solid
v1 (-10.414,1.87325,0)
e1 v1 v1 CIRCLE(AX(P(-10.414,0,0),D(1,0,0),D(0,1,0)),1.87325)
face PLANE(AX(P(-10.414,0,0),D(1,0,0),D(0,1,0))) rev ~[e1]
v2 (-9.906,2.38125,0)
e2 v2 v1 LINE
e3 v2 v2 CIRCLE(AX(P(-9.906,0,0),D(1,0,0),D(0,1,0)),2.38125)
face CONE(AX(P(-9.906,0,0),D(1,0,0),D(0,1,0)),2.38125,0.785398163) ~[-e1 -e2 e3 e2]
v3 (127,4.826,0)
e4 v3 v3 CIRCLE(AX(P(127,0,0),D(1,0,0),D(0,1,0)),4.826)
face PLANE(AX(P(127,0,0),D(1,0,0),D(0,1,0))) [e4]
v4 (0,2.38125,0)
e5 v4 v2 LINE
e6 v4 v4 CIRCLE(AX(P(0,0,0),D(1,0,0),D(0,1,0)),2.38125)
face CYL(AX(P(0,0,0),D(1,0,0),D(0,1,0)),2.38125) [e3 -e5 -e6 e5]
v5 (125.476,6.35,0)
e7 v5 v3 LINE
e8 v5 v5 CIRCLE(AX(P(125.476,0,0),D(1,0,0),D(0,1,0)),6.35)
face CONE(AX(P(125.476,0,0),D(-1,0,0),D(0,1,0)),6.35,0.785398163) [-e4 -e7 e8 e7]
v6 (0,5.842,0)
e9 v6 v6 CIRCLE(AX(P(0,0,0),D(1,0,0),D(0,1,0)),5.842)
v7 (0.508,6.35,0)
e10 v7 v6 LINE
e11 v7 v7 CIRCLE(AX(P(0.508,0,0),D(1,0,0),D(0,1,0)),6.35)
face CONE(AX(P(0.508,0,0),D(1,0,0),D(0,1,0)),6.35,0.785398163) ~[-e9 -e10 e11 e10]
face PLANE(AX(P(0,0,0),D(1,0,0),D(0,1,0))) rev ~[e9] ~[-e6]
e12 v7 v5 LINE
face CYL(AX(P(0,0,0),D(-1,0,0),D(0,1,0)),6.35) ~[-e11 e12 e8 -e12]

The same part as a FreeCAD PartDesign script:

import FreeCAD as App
import Part
import Sketcher
from FreeCAD import Vector
Q = App.Units.Quantity


def edges_at(feature, points):
    """Names of the edges that pass closest to the given points."""
    edges = feature.Shape.Edges
    near = lambda p: min(range(len(edges)), key=lambda i: edges[i].distToShape(Part.Vertex(*p))[0])
    return sorted({f"Edge{near(p) + 1}" for p in points})

doc = App.newDocument("Part")
body = doc.addObject("PartDesign::Body", "Body")

# Sketch on YZ plane
sketch1 = body.newObject("Sketcher::SketchObject", "Sketch")
sketch1.AttachmentSupport = (doc.getObject("YZ_Plane"), [""])
sketch1.MapMode = "FlatFace"
sketch1.addGeometry(Part.Circle(Vector(0, 0, 0), Vector(0, 0, 1), 6), False)
sketch1.addConstraint([
    Sketcher.Constraint("Coincident", 0, 3, -1, 1),
    Sketcher.Constraint("Diameter", 0, Q("0.5 in")),
])
pad1 = body.newObject("PartDesign::Pad", "Pad")
pad1.Profile = sketch1
pad1.Length = Q("5 in")
doc.recompute()

chamfer = body.newObject("PartDesign::Chamfer", "Chamfer")
chamfer.Base = (pad1, edges_at(pad1, [(127, -6.35, 0)]))
chamfer.ChamferType = "Two distances"
chamfer.Size = Q("0.06 in")
chamfer.Size2 = Q("0.06 in")

# Sketch on YZ plane
sketch2 = body.newObject("Sketcher::SketchObject", "Sketch001")
sketch2.AttachmentSupport = (doc.getObject("YZ_Plane"), [""])
sketch2.MapMode = "FlatFace"
sketch2.addGeometry(Part.Circle(Vector(0, 0, 0), Vector(0, 0, 1), 2.4), False)
sketch2.addConstraint([
    Sketcher.Constraint("Coincident", 0, 3, -1, 1),
    Sketcher.Constraint("Diameter", 0, Q("0.1875 in")),
])
pad2 = body.newObject("PartDesign::Pad", "Pad001")
pad2.Profile = sketch2
pad2.Length = Q("0.41 in")
pad2.Reversed = True
doc.recompute()

chamfer2 = body.newObject("PartDesign::Chamfer", "Chamfer001")
chamfer2.Base = (pad2, edges_at(pad2, [(0, -6.35, 0), (-10.414, -2.381, 0)]))
chamfer2.ChamferType = "Two distances"
chamfer2.Size = Q("0.02 in")
chamfer2.Size2 = Q("0.02 in")

doc.recompute()
